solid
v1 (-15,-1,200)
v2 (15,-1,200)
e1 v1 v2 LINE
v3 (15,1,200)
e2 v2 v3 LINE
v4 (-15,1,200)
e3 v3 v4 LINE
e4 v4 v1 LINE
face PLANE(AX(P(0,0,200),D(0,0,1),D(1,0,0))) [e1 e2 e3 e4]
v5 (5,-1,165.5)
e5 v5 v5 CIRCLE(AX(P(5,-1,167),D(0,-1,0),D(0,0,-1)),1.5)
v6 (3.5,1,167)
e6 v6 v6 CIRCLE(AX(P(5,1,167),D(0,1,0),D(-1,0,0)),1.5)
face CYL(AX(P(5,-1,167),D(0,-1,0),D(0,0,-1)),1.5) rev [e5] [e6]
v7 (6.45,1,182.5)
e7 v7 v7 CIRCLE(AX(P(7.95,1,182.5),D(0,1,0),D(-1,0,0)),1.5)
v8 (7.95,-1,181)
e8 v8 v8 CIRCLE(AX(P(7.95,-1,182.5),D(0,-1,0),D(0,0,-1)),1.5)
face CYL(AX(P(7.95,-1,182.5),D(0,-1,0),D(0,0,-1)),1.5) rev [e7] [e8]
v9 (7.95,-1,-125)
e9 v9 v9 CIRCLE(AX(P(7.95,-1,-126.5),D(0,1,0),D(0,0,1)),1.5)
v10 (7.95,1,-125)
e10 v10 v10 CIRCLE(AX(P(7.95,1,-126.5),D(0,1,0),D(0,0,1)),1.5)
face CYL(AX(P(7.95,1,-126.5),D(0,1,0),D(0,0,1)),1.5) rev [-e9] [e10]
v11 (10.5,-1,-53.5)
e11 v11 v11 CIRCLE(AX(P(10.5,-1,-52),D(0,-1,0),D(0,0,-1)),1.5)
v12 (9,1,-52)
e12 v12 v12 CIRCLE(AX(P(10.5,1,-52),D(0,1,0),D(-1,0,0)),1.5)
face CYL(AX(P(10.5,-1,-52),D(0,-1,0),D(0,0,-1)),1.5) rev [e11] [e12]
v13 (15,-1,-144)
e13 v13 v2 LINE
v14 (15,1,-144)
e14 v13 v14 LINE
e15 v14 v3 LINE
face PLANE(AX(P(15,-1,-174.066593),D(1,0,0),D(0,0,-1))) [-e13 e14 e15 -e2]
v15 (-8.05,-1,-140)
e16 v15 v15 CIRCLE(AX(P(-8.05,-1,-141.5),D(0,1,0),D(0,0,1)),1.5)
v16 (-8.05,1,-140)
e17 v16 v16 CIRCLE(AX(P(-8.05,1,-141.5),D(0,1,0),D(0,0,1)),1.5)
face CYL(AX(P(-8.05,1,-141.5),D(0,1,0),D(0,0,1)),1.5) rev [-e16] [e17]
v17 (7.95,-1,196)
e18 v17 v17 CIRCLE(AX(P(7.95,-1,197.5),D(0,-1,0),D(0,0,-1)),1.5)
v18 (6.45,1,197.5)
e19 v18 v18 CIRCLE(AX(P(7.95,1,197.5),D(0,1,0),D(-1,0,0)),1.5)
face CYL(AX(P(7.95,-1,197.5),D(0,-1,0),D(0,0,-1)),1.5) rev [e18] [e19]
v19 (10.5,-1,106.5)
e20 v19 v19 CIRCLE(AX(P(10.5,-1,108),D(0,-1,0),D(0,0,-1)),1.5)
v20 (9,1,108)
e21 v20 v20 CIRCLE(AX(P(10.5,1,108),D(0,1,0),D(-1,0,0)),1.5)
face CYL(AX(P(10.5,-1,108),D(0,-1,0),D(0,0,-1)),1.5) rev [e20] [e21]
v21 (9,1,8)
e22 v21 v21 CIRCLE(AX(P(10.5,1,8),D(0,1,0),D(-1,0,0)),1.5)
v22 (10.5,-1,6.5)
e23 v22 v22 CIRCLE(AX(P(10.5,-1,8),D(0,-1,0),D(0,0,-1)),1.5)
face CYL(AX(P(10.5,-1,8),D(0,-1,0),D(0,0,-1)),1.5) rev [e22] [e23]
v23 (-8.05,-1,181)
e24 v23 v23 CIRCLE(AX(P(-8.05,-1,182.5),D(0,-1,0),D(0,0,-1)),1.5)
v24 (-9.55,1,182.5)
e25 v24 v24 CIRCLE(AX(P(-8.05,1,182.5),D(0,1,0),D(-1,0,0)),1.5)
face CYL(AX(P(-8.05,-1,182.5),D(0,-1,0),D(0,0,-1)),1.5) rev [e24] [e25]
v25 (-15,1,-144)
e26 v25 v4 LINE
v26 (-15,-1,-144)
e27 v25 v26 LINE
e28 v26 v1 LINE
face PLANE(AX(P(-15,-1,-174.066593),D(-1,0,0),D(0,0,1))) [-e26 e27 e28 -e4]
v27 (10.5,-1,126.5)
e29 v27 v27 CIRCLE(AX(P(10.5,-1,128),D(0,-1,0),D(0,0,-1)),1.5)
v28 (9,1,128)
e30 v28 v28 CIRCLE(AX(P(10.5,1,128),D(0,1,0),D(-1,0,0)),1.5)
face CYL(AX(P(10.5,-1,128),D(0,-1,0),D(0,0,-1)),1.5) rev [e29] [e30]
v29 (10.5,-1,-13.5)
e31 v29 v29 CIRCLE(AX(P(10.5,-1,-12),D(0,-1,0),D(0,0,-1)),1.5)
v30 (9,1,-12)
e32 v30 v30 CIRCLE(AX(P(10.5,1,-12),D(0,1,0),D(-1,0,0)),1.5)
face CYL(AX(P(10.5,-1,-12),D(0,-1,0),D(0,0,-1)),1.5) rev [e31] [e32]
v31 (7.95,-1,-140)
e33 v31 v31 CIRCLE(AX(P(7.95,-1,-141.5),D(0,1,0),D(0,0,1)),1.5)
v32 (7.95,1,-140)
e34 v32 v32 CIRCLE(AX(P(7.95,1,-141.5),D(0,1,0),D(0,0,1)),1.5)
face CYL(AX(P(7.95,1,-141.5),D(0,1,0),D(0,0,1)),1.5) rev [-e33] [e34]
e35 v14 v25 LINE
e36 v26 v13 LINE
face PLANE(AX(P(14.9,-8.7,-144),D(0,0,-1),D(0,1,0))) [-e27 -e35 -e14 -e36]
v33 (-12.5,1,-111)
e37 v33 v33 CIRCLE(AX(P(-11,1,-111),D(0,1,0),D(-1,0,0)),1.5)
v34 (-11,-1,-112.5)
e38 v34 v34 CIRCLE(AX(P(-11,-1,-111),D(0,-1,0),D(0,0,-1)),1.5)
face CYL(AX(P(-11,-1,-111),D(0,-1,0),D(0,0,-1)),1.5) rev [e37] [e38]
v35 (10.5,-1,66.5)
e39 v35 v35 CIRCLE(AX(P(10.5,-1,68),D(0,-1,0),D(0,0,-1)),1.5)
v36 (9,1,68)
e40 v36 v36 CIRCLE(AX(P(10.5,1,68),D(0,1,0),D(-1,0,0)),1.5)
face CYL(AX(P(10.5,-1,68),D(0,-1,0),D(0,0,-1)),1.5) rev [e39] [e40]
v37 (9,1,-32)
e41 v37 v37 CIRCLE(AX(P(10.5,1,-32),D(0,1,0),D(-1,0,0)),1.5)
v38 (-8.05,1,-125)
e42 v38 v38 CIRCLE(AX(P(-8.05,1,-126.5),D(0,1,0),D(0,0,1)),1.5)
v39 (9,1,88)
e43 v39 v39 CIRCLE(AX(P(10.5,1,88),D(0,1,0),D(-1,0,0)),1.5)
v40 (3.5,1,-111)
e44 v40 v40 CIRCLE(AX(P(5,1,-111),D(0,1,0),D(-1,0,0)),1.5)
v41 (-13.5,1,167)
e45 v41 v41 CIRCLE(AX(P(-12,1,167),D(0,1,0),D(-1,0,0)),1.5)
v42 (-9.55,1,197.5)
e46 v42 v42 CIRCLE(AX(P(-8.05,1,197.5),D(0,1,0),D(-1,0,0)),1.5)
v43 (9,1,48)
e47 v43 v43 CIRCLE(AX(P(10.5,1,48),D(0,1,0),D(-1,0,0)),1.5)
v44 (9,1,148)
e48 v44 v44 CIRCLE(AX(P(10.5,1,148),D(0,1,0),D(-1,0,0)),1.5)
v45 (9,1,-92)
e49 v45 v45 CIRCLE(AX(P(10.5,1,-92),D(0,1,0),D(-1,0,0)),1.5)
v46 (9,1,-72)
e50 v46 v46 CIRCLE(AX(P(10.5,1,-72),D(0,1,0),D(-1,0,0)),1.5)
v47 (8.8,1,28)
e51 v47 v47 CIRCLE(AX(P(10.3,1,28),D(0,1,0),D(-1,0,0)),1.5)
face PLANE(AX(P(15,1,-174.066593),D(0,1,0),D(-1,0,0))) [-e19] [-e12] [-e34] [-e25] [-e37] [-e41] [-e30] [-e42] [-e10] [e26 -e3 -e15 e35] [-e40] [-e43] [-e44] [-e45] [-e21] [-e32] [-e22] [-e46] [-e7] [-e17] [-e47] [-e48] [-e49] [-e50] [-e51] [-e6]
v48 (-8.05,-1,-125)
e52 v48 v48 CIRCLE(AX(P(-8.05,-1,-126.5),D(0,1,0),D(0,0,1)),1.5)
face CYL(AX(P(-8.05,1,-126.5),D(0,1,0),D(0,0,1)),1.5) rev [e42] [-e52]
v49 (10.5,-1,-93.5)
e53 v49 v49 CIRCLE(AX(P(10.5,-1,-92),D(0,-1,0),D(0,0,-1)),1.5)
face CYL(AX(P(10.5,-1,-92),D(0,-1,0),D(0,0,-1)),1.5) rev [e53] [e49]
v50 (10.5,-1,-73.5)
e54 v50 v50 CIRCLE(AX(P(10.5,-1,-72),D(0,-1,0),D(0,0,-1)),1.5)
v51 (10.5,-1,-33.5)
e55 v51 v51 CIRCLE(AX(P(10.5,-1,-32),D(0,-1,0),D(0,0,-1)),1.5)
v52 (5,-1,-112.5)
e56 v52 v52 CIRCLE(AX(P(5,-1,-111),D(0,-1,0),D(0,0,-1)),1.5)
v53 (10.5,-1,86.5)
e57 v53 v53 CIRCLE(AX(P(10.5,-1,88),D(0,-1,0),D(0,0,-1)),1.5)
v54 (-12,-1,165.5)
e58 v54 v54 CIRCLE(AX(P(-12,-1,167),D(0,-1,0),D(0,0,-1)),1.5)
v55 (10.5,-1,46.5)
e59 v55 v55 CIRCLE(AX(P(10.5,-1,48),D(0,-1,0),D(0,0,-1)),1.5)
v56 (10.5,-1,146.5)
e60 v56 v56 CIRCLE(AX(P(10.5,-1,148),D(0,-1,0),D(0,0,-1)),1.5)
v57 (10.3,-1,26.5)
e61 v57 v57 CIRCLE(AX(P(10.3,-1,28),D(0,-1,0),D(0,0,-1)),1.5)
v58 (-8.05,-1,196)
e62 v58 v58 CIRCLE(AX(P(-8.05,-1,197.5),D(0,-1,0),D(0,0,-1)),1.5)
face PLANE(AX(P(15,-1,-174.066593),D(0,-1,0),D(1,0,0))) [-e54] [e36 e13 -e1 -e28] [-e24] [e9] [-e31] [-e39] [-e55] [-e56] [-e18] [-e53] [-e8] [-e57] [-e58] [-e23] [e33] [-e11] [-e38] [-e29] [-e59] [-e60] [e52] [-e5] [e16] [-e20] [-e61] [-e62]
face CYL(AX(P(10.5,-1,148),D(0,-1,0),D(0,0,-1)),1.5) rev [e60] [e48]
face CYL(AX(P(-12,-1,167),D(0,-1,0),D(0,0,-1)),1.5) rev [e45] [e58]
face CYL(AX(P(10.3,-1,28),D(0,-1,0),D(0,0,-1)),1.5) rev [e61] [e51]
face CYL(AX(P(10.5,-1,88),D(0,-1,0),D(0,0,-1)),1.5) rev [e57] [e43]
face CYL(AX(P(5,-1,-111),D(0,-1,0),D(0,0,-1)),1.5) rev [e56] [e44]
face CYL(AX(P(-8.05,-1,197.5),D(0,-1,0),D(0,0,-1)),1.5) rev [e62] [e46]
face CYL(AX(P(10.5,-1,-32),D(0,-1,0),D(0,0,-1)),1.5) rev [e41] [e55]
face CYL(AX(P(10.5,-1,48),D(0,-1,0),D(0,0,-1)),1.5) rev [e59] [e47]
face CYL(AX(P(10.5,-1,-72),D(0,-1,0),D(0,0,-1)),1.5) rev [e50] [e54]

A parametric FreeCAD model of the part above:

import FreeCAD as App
import Part
import Sketcher
from FreeCAD import Vector
Q = App.Units.Quantity

doc = App.newDocument("Part")
params = doc.addObject("Spreadsheet::Sheet", "Params")
for row, (alias, value) in enumerate([
    ("sketch1_width", "30 mm"),
    ("sketch1_height", "2 mm"),
    ("pad1_length", "200 mm"),
    ("pad1_length2", "144 mm"),
    ("sketch2_diameter", "3 mm"),
    ("hole_diameter", "3 mm"),
    ("sketch3_diameter", "3 mm"),
    ("hole2_diameter", "3 mm"),
], start=1):
    params.set(f"A{row}", alias)
    params.set(f"B{row}", "=" + value)
    params.setAlias(f"B{row}", alias)

body = doc.addObject("PartDesign::Body", "Body")

# Sketch on XY plane
sketch1 = doc.addObject("Sketcher::SketchObject", "Sketch")
body.addObject(sketch1)
sketch1.AttachmentSupport = (doc.XY_Plane, [""])
sketch1.MapMode = "FlatFace"
sketch1.addGeometry([
    Part.LineSegment(Vector(-15, 1, 0), Vector(-15, -1, 0)),
    Part.LineSegment(Vector(-15, -1, 0), Vector(15, -1, 0)),
    Part.LineSegment(Vector(15, -1, 0), Vector(15, 1, 0)),
    Part.LineSegment(Vector(15, 1, 0), Vector(-15, 1, 0)),
], False)
sketch1.addConstraint([
    Sketcher.Constraint("Coincident", 0, 2, 1, 1),
    Sketcher.Constraint("Coincident", 1, 2, 2, 1),
    Sketcher.Constraint("Coincident", 2, 2, 3, 1),
    Sketcher.Constraint("Coincident", 3, 2, 0, 1),
    Sketcher.Constraint("Vertical", 0),
    Sketcher.Constraint("Horizontal", 1),
    Sketcher.Constraint("Vertical", 2),
    Sketcher.Constraint("Horizontal", 3),
    Sketcher.Constraint("Symmetric", 0, 2, 2, 2, -1, 1),
    Sketcher.Constraint("DistanceX", 1, 1, 1, 2, Q("30 mm")),
    Sketcher.Constraint("DistanceY", 0, 2, 0, 1, Q("2 mm")),
])
sketch1.setExpression("Constraints[9]", "Params.sketch1_width")
sketch1.setExpression("Constraints[10]", "Params.sketch1_height")
pad1 = doc.addObject("PartDesign::Pad", "Pad")
body.addObject(pad1)
pad1.Profile = sketch1
pad1.Type = "TwoLengths"
pad1.setExpression("Length", "Params.pad1_length")
pad1.setExpression("Length2", "Params.pad1_length2")

# Sketch on XZ plane
sketch2 = doc.addObject("Sketcher::SketchObject", "Sketch001")
body.addObject(sketch2)
sketch2.AttachmentSupport = (doc.XZ_Plane, [""])
sketch2.MapMode = "FlatFace"
sketch2.AttachmentOffset = App.Placement(Vector(0, 0, -1), App.Rotation())
sketch2.addGeometry([
    Part.Circle(Vector(-8.05, -126.5, 0), Vector(0, 0, 1), 1.5),
    Part.Circle(Vector(7.95, -126.5, 0), Vector(0, 0, 1), 1.5),
    Part.Circle(Vector(7.95, -141.5, 0), Vector(0, 0, 1), 1.5),
    Part.Circle(Vector(-8.05, -141.5, 0), Vector(0, 0, 1), 1.5),
], False)
sketch2.addConstraint([
    Sketcher.Constraint("Equal", 0, 1),
    Sketcher.Constraint("Equal", 1, 2),
    Sketcher.Constraint("Equal", 2, 3),
    Sketcher.Constraint("Horizontal", 0, 3, 1, 3),
    Sketcher.Constraint("Horizontal", 2, 3, 3, 3),
    Sketcher.Constraint("Vertical", 1, 3, 2, 3),
    Sketcher.Constraint("Vertical", 0, 3, 3, 3),
    Sketcher.Constraint("Diameter", 0, Q("3 mm")),
    Sketcher.Constraint("DistanceX", 0, 3, 1, 3, Q("16 mm")),
    Sketcher.Constraint("DistanceY", 2, 3, 1, 3, Q("15 mm")),
    Sketcher.Constraint("DistanceY", 0, 3, -1, 1, Q("126.5 mm")),
    Sketcher.Constraint("DistanceX", 0, 3, -1, 1, Q("8.05 mm")),
])
sketch2.setExpression("Constraints[7]", "Params.sketch2_diameter")
doc.recompute()
hole = doc.addObject("PartDesign::Hole", "Hole")
body.addObject(hole)
hole.Profile = sketch2
hole.ThreadType = "None"
hole.setExpression("Diameter", "Params.hole_diameter")
hole.DepthType = "ThroughAll"
hole.Reversed = True

# Sketch on XZ plane
sketch3 = doc.addObject("Sketcher::SketchObject", "Sketch002")
body.addObject(sketch3)
sketch3.AttachmentSupport = (doc.XZ_Plane, [""])
sketch3.MapMode = "FlatFace"
sketch3.AttachmentOffset = App.Placement(Vector(0, 0, 1), App.Rotation())
sketch3.addGeometry([
    Part.Circle(Vector(7.95, 197.5, 0), Vector(0, 0, 1), 1.5),  # 0
    Part.Circle(Vector(-8.05, 197.5, 0), Vector(0, 0, 1), 1.5),  # 1
    Part.Circle(Vector(-8.05, 182.5, 0), Vector(0, 0, 1), 1.5),  # 2
    Part.Circle(Vector(7.95, 182.5, 0), Vector(0, 0, 1), 1.5),  # 3
    Part.Circle(Vector(5, 167, 0), Vector(0, 0, 1), 1.5),  # 4
    Part.Circle(Vector(-12, 167, 0), Vector(0, 0, 1), 1.5),  # 5
    Part.Circle(Vector(10.5, 148, 0), Vector(0, 0, 1), 1.5),  # 6
    Part.Circle(Vector(10.5, 128, 0), Vector(0, 0, 1), 1.5),  # 7
    Part.Circle(Vector(10.5, 108, 0), Vector(0, 0, 1), 1.5),  # 8
    Part.Circle(Vector(10.5, 88, 0), Vector(0, 0, 1), 1.5),  # 9
    Part.Circle(Vector(10.5, 68, 0), Vector(0, 0, 1), 1.5),  # 10
    Part.Circle(Vector(10.5, 48, 0), Vector(0, 0, 1), 1.5),  # 11
    Part.Circle(Vector(10.3, 28, 0), Vector(0, 0, 1), 1.5),  # 12
    Part.Circle(Vector(10.5, 8, 0), Vector(0, 0, 1), 1.5),  # 13
    Part.Circle(Vector(10.5, -12, 0), Vector(0, 0, 1), 1.5),  # 14
    Part.Circle(Vector(10.5, -32, 0), Vector(0, 0, 1), 1.5),  # 15
    Part.Circle(Vector(10.5, -52, 0), Vector(0, 0, 1), 1.5),  # 16
    Part.Circle(Vector(10.5, -72, 0), Vector(0, 0, 1), 1.5),  # 17
    Part.Circle(Vector(10.5, -92, 0), Vector(0, 0, 1), 1.5),  # 18
    Part.Circle(Vector(5, -111, 0), Vector(0, 0, 1), 1.5),  # 19
    Part.Circle(Vector(-11, -111, 0), Vector(0, 0, 1), 1.5),  # 20
], False)
sketch3.addConstraint([
    Sketcher.Constraint("Equal", 0, 1),
    Sketcher.Constraint("Equal", 1, 2),
    Sketcher.Constraint("Equal", 2, 3),
    Sketcher.Constraint("Equal", 3, 4),
    Sketcher.Constraint("Equal", 4, 5),
    Sketcher.Constraint("Equal", 5, 6),
    Sketcher.Constraint("Equal", 6, 7),
    Sketcher.Constraint("Equal", 7, 8),
    Sketcher.Constraint("Equal", 8, 9),
    Sketcher.Constraint("Equal", 9, 10),
    Sketcher.Constraint("Equal", 10, 11),
    Sketcher.Constraint("Equal", 11, 12),
    Sketcher.Constraint("Equal", 12, 13),
    Sketcher.Constraint("Equal", 13, 14),
    Sketcher.Constraint("Equal", 14, 15),
    Sketcher.Constraint("Equal", 15, 16),
    Sketcher.Constraint("Equal", 16, 17),
    Sketcher.Constraint("Equal", 17, 18),
    Sketcher.Constraint("Equal", 18, 19),
    Sketcher.Constraint("Equal", 19, 20),
    Sketcher.Constraint("Horizontal", 0, 3, 1, 3),
    Sketcher.Constraint("Horizontal", 2, 3, 3, 3),
    Sketcher.Constraint("Horizontal", 4, 3, 5, 3),
    Sketcher.Constraint("Horizontal", 19, 3, 20, 3),
    Sketcher.Constraint("Vertical", 1, 3, 2, 3),
    Sketcher.Constraint("Vertical", 0, 3, 3, 3),
    Sketcher.Constraint("Vertical", 6, 3, 7, 3),
    Sketcher.Constraint("Vertical", 7, 3, 8, 3),
    Sketcher.Constraint("Vertical", 8, 3, 9, 3),
    Sketcher.Constraint("Vertical", 9, 3, 10, 3),
    Sketcher.Constraint("Vertical", 10, 3, 11, 3),
    Sketcher.Constraint("Vertical", 11, 3, 13, 3),
    Sketcher.Constraint("Vertical", 13, 3, 14, 3),
    Sketcher.Constraint("Vertical", 14, 3, 15, 3),
    Sketcher.Constraint("Vertical", 15, 3, 16, 3),
    Sketcher.Constraint("Vertical", 16, 3, 17, 3),
    Sketcher.Constraint("Vertical", 17, 3, 18, 3),
    Sketcher.Constraint("Vertical", 4, 3, 19, 3),
    Sketcher.Constraint("Diameter", 0, Q("3 mm")),
    Sketcher.Constraint("DistanceX", -1, 1, 4, 3, Q("5 mm")),
    Sketcher.Constraint("DistanceY", -1, 1, 4, 3, Q("167 mm")),
    Sketcher.Constraint("DistanceX", 5, 3, -1, 1, Q("12 mm")),
    Sketcher.Constraint("DistanceY", -1, 1, 6, 3, Q("148 mm")),
    Sketcher.Constraint("DistanceY", -1, 1, 7, 3, Q("128 mm")),
    Sketcher.Constraint("DistanceY", -1, 1, 8, 3, Q("108 mm")),
    Sketcher.Constraint("DistanceY", -1, 1, 9, 3, Q("88 mm")),
    Sketcher.Constraint("DistanceY", -1, 1, 10, 3, Q("68 mm")),
    Sketcher.Constraint("DistanceY", -1, 1, 11, 3, Q("48 mm")),
    Sketcher.Constraint("DistanceY", -1, 1, 12, 3, Q("28 mm")),
    Sketcher.Constraint("DistanceY", -1, 1, 13, 3, Q("8 mm")),
    Sketcher.Constraint("DistanceY", 14, 3, -1, 1, Q("12 mm")),
    Sketcher.Constraint("DistanceY", 15, 3, -1, 1, Q("32 mm")),
    Sketcher.Constraint("DistanceY", 16, 3, -1, 1, Q("52 mm")),
    Sketcher.Constraint("DistanceY", 17, 3, -1, 1, Q("72 mm")),
    Sketcher.Constraint("DistanceY", 18, 3, -1, 1, Q("92 mm")),
    Sketcher.Constraint("DistanceY", 19, 3, -1, 1, Q("111 mm")),
    Sketcher.Constraint("DistanceX", 20, 3, -1, 1, Q("11 mm")),
    Sketcher.Constraint("DistanceX", 1, 3, 0, 3, Q("16 mm")),
    Sketcher.Constraint("DistanceY", 2, 3, 1, 3, Q("15 mm")),
    Sketcher.Constraint("DistanceY", -1, 1, 0, 3, Q("197.5 mm")),
    Sketcher.Constraint("DistanceX", -1, 1, 6, 3, Q("10.5 mm")),
    Sketcher.Constraint("DistanceX", -1, 1, 12, 3, Q("10.3 mm")),
    Sketcher.Constraint("DistanceX", -1, 1, 0, 3, Q("7.95 mm")),
])
sketch3.setExpression("Constraints[38]", "Params.sketch3_diameter")
doc.recompute()
hole2 = doc.addObject("PartDesign::Hole", "Hole001")
body.addObject(hole2)
hole2.Profile = sketch3
hole2.ThreadType = "None"
hole2.setExpression("Diameter", "Params.hole2_diameter")
hole2.DepthType = "ThroughAll"

doc.recompute()
